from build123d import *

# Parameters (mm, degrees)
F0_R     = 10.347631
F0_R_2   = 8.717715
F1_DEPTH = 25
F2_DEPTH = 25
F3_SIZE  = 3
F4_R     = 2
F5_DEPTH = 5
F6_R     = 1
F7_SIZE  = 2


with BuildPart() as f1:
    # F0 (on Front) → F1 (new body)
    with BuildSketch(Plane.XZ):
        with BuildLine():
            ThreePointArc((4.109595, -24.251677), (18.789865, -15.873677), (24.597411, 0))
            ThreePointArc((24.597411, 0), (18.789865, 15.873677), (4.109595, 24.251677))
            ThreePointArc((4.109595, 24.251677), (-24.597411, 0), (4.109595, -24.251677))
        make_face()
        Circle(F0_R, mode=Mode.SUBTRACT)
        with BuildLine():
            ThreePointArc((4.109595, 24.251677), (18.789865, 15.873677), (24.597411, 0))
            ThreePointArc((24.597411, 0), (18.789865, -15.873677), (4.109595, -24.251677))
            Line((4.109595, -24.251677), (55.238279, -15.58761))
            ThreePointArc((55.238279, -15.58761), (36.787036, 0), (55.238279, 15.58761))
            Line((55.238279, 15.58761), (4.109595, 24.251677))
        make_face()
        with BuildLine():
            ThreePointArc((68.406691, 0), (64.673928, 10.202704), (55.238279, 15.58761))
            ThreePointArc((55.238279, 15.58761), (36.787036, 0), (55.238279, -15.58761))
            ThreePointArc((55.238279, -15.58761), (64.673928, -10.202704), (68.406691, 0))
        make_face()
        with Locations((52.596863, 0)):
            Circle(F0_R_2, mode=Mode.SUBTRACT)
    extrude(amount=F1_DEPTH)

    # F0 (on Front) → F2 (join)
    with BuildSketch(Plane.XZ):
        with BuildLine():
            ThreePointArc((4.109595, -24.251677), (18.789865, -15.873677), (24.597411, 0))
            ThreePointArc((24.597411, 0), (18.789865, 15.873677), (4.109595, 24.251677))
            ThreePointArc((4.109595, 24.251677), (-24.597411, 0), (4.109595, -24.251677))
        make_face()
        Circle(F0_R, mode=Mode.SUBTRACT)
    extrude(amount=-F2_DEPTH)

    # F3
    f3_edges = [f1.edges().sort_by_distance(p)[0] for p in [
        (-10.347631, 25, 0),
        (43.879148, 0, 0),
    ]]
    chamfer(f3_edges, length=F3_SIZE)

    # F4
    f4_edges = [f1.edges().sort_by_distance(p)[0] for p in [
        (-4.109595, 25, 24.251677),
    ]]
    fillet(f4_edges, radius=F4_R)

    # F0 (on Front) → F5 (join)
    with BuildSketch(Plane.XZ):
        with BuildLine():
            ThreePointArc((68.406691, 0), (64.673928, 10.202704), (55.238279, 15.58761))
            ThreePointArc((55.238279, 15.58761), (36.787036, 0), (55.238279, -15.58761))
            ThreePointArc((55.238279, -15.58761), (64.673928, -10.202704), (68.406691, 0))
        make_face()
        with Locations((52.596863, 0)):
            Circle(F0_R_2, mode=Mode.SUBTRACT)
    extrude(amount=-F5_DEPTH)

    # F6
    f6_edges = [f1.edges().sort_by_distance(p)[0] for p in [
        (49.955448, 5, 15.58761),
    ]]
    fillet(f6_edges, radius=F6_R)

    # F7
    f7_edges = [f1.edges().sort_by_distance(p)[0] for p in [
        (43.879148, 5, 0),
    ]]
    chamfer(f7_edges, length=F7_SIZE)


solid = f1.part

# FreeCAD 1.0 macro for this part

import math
import FreeCAD as App
import Part
import Sketcher
from FreeCAD import Vector
Q = App.Units.Quantity


def edges_at(feature, points):
    """Names of the edges that pass closest to the given points."""
    edges = feature.Shape.Edges
    near = lambda p: min(range(len(edges)), key=lambda i: edges[i].distToShape(Part.Vertex(*p))[0])
    return sorted({f"Edge{near(p) + 1}" for p in points})

doc = App.newDocument("Part")
body = doc.addObject("PartDesign::Body", "Body")

# Sketch on XZ plane
sketch1 = body.newObject("Sketcher::SketchObject", "Sketch")
sketch1.AttachmentSupport = (doc.getObject("XZ_Plane"), [""])
sketch1.MapMode = "FlatFace"
sketch1.addGeometry(Part.ArcOfCircle(Part.Circle(Vector(0, 0, 0), Vector(0, 0, 1), 25), math.radians(80), math.radians(280)), False)
sketch1.addGeometry(Part.LineSegment(Vector(4, -24, 0), Vector(55, -16, 0)), False)
sketch1.addGeometry(Part.ArcOfCircle(Part.Circle(Vector(53, 0, 0), Vector(0, 0, 1), 16), math.radians(-80), math.radians(0)), False)
sketch1.addGeometry(Part.ArcOfCircle(Part.Circle(Vector(53, 0, 0), Vector(0, 0, 1), 16), math.radians(0), math.radians(80)), False)
sketch1.addGeometry(Part.LineSegment(Vector(55, 16, 0), Vector(4, 24, 0)), False)
sketch1.addGeometry(Part.Circle(Vector(0, 0, 0), Vector(0, 0, 1), 10), False)
sketch1.addGeometry(Part.Circle(Vector(53, 0, 0), Vector(0, 0, 1), 9), False)
sketch1.addConstraint(Sketcher.Constraint("Tangent", 0, 2, 1, 1))
sketch1.addConstraint(Sketcher.Constraint("Tangent", 1, 2, 2, 1))
sketch1.addConstraint(Sketcher.Constraint("Tangent", 2, 2, 3, 1))
sketch1.addConstraint(Sketcher.Constraint("Tangent", 3, 2, 4, 1))
sketch1.addConstraint(Sketcher.Constraint("Tangent", 4, 2, 0, 1))
sketch1.addConstraint(Sketcher.Constraint("Coincident", 0, 3, -1, 1))
sketch1.addConstraint(Sketcher.Constraint("Coincident", 5, 3, -1, 1))
sketch1.addConstraint(Sketcher.Constraint("Coincident", 6, 3, 2, 3))
sketch1.addConstraint(Sketcher.Constraint("Equal", 2, 3))
sketch1.addConstraint(Sketcher.Constraint("PointOnObject", 2, 3, -1))
sketch1.addConstraint(Sketcher.Constraint("PointOnObject", 2, 2, -1))
sketch1.addConstraint(Sketcher.Constraint("Diameter", 5, Q("20.695262 mm")))
sketch1.addConstraint(Sketcher.Constraint("Diameter", 6, Q("17.43543 mm")))
sketch1.addConstraint(Sketcher.Constraint("Radius", 0, Q("24.597411 mm")))
sketch1.addConstraint(Sketcher.Constraint("Radius", 2, Q("15.809828 mm")))
sketch1.addConstraint(Sketcher.Constraint("DistanceX", -1, 1, 1, 2, Q("55.238279 mm")))
pad1 = body.newObject("PartDesign::Pad", "Pad")
pad1.Profile = sketch1
pad1.Length = 25

# Sketch on XZ plane
sketch2 = body.newObject("Sketcher::SketchObject", "Sketch001")
sketch2.AttachmentSupport = (doc.getObject("XZ_Plane"), [""])
sketch2.MapMode = "FlatFace"
sketch2.addGeometry(Part.ArcOfCircle(Part.Circle(Vector(0, 0, 0), Vector(0, 0, 1), 25), math.radians(-80), math.radians(0)), False)
sketch2.addGeometry(Part.ArcOfCircle(Part.Circle(Vector(0, 0, 0), Vector(0, 0, 1), 25), math.radians(0), math.radians(80)), False)
sketch2.addGeometry(Part.ArcOfCircle(Part.Circle(Vector(0, 0, 0), Vector(0, 0, 1), 25), math.radians(80), math.radians(280)), False)
sketch2.addGeometry(Part.Circle(Vector(0, 0, 0), Vector(0, 0, 1), 10), False)
sketch2.addConstraint(Sketcher.Constraint("Tangent", 0, 2, 1, 1))
sketch2.addConstraint(Sketcher.Constraint("Tangent", 1, 2, 2, 1))
sketch2.addConstraint(Sketcher.Constraint("Tangent", 2, 2, 0, 1))
sketch2.addConstraint(Sketcher.Constraint("Coincident", 0, 3, -1, 1))
sketch2.addConstraint(Sketcher.Constraint("Coincident", 3, 3, -1, 1))
sketch2.addConstraint(Sketcher.Constraint("PointOnObject", 0, 2, -1))
sketch2.addConstraint(Sketcher.Constraint("Vertical", 1, 2, 2, 2))
sketch2.addConstraint(Sketcher.Constraint("Diameter", 3, Q("20.695262 mm")))
sketch2.addConstraint(Sketcher.Constraint("Radius", 0, Q("24.597409 mm")))
sketch2.addConstraint(Sketcher.Constraint("DistanceY", 0, 3, 1, 2, Q("24.251678 mm")))
pad2 = body.newObject("PartDesign::Pad", "Pad001")
pad2.Profile = sketch2
pad2.Length = 25
pad2.Reversed = True
doc.recompute()

chamfer = body.newObject("PartDesign::Chamfer", "Chamfer")
chamfer.Base = (pad2, edges_at(pad2, [(-10.348, 25, 0), (43.879, 0, 0)]))
chamfer.Size = 3
doc.recompute()

fillet = body.newObject("PartDesign::Fillet", "Fillet")
fillet.Base = (chamfer, edges_at(chamfer, [(-24.597, 25, 0)]))
fillet.Radius = 2

# Sketch on XZ plane
sketch3 = body.newObject("Sketcher::SketchObject", "Sketch002")
sketch3.AttachmentSupport = (doc.getObject("XZ_Plane"), [""])
sketch3.MapMode = "FlatFace"
sketch3.addGeometry(Part.ArcOfCircle(Part.Circle(Vector(53, 0, 0), Vector(0, 0, 1), 16), math.radians(0), math.radians(80)), False)
sketch3.addGeometry(Part.ArcOfCircle(Part.Circle(Vector(53, 0, 0), Vector(0, 0, 1), 16), math.radians(80), math.radians(280)), False)
sketch3.addGeometry(Part.ArcOfCircle(Part.Circle(Vector(53, 0, 0), Vector(0, 0, 1), 16), math.radians(-80), math.radians(0)), False)
sketch3.addGeometry(Part.Circle(Vector(53, 0, 0), Vector(0, 0, 1), 9), False)
sketch3.addConstraint(Sketcher.Constraint("Tangent", 0, 2, 1, 1))
sketch3.addConstraint(Sketcher.Constraint("Tangent", 1, 2, 2, 1))
sketch3.addConstraint(Sketcher.Constraint("Tangent", 2, 2, 0, 1))
sketch3.addConstraint(Sketcher.Constraint("Coincident", 3, 3, 0, 3))
sketch3.addConstraint(Sketcher.Constraint("Symmetric", 0, 2, 1, 2, -1))
sketch3.addConstraint(Sketcher.Constraint("PointOnObject", 2, 2, -1))
sketch3.addConstraint(Sketcher.Constraint("Diameter", 3, Q("17.43543 mm")))
sketch3.addConstraint(Sketcher.Constraint("Radius", 0, Q("15.809828 mm")))
sketch3.addConstraint(Sketcher.Constraint("DistanceX", -1, 1, 0, 2, Q("55.238279 mm")))
sketch3.addConstraint(Sketcher.Constraint("DistanceY", -1, 1, 0, 2, Q("15.58761 mm")))
pad3 = body.newObject("PartDesign::Pad", "Pad002")
pad3.Profile = sketch3
pad3.Length = 5
pad3.Reversed = True
doc.recompute()

fillet2 = body.newObject("PartDesign::Fillet", "Fillet001")
fillet2.Base = (pad3, edges_at(pad3, [(36.787, 5, 0)]))
fillet2.Radius = 1
doc.recompute()

chamfer2 = body.newObject("PartDesign::Chamfer", "Chamfer001")
chamfer2.Base = (fillet2, edges_at(fillet2, [(43.879, 5, 0)]))
chamfer2.Size = 2

doc.recompute()
